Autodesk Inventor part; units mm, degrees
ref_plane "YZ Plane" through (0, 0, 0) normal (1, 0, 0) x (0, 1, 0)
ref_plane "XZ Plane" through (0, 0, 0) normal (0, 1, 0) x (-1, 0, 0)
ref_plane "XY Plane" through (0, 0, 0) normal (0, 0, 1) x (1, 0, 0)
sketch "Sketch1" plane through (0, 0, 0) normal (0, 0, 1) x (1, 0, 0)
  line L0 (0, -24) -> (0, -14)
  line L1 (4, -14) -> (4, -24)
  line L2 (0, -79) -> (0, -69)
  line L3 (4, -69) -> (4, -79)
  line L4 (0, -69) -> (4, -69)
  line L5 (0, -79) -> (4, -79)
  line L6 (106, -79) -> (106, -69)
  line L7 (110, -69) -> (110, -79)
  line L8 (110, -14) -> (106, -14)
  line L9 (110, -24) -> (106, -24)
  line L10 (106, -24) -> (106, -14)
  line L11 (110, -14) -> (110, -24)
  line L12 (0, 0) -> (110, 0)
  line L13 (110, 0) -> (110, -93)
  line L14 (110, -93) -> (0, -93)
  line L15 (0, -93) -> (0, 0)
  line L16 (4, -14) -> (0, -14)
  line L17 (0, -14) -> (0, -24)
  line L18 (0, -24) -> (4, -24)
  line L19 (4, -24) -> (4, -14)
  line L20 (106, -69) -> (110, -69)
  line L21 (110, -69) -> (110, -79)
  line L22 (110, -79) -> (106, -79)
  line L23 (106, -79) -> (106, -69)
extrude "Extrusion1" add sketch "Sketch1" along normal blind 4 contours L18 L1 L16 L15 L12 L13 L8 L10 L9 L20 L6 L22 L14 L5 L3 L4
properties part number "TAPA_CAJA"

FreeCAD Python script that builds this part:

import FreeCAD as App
import Part
import Sketcher

V = App.Vector

doc = App.newDocument("Part")
params = doc.addObject("Spreadsheet::Sheet", "Params")
for row, (alias, value) in enumerate([
    ("sketch1_width", "4 mm"),
    ("sketch1_width2", "110 mm"),
    ("sketch1_height", "45 mm"),
    ("sketch1_height2", "10 mm"),
    ("sketch1_height3", "14 mm"),
    ("pad1_length", "4 mm"),
], start=1):
    params.set(f"A{row}", alias)
    params.set(f"B{row}", "=" + value)
    params.setAlias(f"B{row}", alias)

body = doc.addObject("PartDesign::Body", "Body")

# Sketch on XY plane
sketch1 = body.newObject("Sketcher::SketchObject", "Sketch")
sketch1.AttachmentSupport = (doc.getObject("XY_Plane"), [""])
sketch1.MapMode = "FlatFace"
sketch1.addGeometry([
    Part.LineSegment(V(4, -24, 0), V(0, -24, 0)),  # 0
    Part.LineSegment(V(0, -24, 0), V(0, -69, 0)),  # 1
    Part.LineSegment(V(0, -69, 0), V(4, -69, 0)),  # 2
    Part.LineSegment(V(4, -69, 0), V(4, -79, 0)),  # 3
    Part.LineSegment(V(4, -79, 0), V(0, -79, 0)),  # 4
    Part.LineSegment(V(0, -79, 0), V(0, -93, 0)),  # 5
    Part.LineSegment(V(0, -93, 0), V(110, -93, 0)),  # 6
    Part.LineSegment(V(110, -93, 0), V(110, -79, 0)),  # 7
    Part.LineSegment(V(110, -79, 0), V(106, -79, 0)),  # 8
    Part.LineSegment(V(106, -79, 0), V(106, -69, 0)),  # 9
    Part.LineSegment(V(106, -69, 0), V(110, -69, 0)),  # 10
    Part.LineSegment(V(110, -69, 0), V(110, -24, 0)),  # 11
    Part.LineSegment(V(110, -24, 0), V(106, -24, 0)),  # 12
    Part.LineSegment(V(106, -24, 0), V(106, -14, 0)),  # 13
    Part.LineSegment(V(106, -14, 0), V(110, -14, 0)),  # 14
    Part.LineSegment(V(110, -14, 0), V(110, 0, 0)),  # 15
    Part.LineSegment(V(110, 0, 0), V(0, 0, 0)),  # 16
    Part.LineSegment(V(0, 0, 0), V(0, -14, 0)),  # 17
    Part.LineSegment(V(0, -14, 0), V(4, -14, 0)),  # 18
    Part.LineSegment(V(4, -14, 0), V(4, -24, 0)),  # 19
], False)
sketch1.addConstraint([
    Sketcher.Constraint("Coincident", 0, 2, 1, 1),
    Sketcher.Constraint("Coincident", 1, 2, 2, 1),
    Sketcher.Constraint("Coincident", 2, 2, 3, 1),
    Sketcher.Constraint("Coincident", 3, 2, 4, 1),
    Sketcher.Constraint("Coincident", 4, 2, 5, 1),
    Sketcher.Constraint("Coincident", 5, 2, 6, 1),
    Sketcher.Constraint("Coincident", 6, 2, 7, 1),
    Sketcher.Constraint("Coincident", 7, 2, 8, 1),
    Sketcher.Constraint("Coincident", 8, 2, 9, 1),
    Sketcher.Constraint("Coincident", 9, 2, 10, 1),
    Sketcher.Constraint("Coincident", 10, 2, 11, 1),
    Sketcher.Constraint("Coincident", 11, 2, 12, 1),
    Sketcher.Constraint("Coincident", 12, 2, 13, 1),
    Sketcher.Constraint("Coincident", 13, 2, 14, 1),
    Sketcher.Constraint("Coincident", 14, 2, 15, 1),
    Sketcher.Constraint("Coincident", 15, 2, 16, 1),
    Sketcher.Constraint("Coincident", 16, 2, 17, 1),
    Sketcher.Constraint("Coincident", 17, 2, 18, 1),
    Sketcher.Constraint("Coincident", 18, 2, 19, 1),
    Sketcher.Constraint("Coincident", 19, 2, 0, 1),
    Sketcher.Constraint("Horizontal", 0),
    Sketcher.Constraint("Vertical", 1),
    Sketcher.Constraint("Horizontal", 2),
    Sketcher.Constraint("Vertical", 3),
    Sketcher.Constraint("Horizontal", 4),
    Sketcher.Constraint("Vertical", 5),
    Sketcher.Constraint("Horizontal", 6),
    Sketcher.Constraint("Vertical", 7),
    Sketcher.Constraint("Horizontal", 8),
    Sketcher.Constraint("Vertical", 9),
    Sketcher.Constraint("Horizontal", 10),
    Sketcher.Constraint("Vertical", 11),
    Sketcher.Constraint("Horizontal", 12),
    Sketcher.Constraint("Vertical", 13),
    Sketcher.Constraint("Horizontal", 14),
    Sketcher.Constraint("Vertical", 15),
    Sketcher.Constraint("Horizontal", 16),
    Sketcher.Constraint("Vertical", 17),
    Sketcher.Constraint("Horizontal", 18),
    Sketcher.Constraint("Vertical", 19),
    Sketcher.Constraint("Coincident", 16, 2, -1, 1),
    Sketcher.Constraint("PointOnObject", 0, 2, -2),
    Sketcher.Constraint("PointOnObject", 4, 2, -2),
    Sketcher.Constraint("Horizontal", 4, 2, 7, 2),
    Sketcher.Constraint("Horizontal", 2, 2, 9, 2),
    Sketcher.Constraint("Horizontal", 0, 2, 11, 2),
    Sketcher.Constraint("Horizontal", 14, 2, 17, 2),
    Sketcher.Constraint("Vertical", 7, 2, 10, 2),
    Sketcher.Constraint("Vertical", 9, 2, 12, 2),
    Sketcher.Constraint("Vertical", 11, 2, 14, 2),
    Sketcher.Constraint("Vertical", 3, 2, 18, 2),
    Sketcher.Constraint("Equal", 4, 8),
    Sketcher.Constraint("Equal", 9, 13),
    Sketcher.Constraint("Equal", 7, 15),
    Sketcher.Constraint("DistanceX", 0, 2, 0, 1, 4.0),
    Sketcher.Constraint("DistanceX", 6, 1, 6, 2, 110.0),
    Sketcher.Constraint("DistanceY", 1, 2, 1, 1, 45.0),
    Sketcher.Constraint("DistanceY", 3, 2, 3, 1, 10.0),
    Sketcher.Constraint("DistanceY", 5, 2, 5, 1, 14.0),
])
sketch1.setExpression("Constraints[54]", "Params.sketch1_width")
sketch1.setExpression("Constraints[55]", "Params.sketch1_width2")
sketch1.setExpression("Constraints[56]", "Params.sketch1_height")
sketch1.setExpression("Constraints[57]", "Params.sketch1_height2")
sketch1.setExpression("Constraints[58]", "Params.sketch1_height3")
pad1 = body.newObject("PartDesign::Pad", "Pad")
pad1.Profile = sketch1
pad1.setExpression("Length", "Params.pad1_length")

doc.recompute()
